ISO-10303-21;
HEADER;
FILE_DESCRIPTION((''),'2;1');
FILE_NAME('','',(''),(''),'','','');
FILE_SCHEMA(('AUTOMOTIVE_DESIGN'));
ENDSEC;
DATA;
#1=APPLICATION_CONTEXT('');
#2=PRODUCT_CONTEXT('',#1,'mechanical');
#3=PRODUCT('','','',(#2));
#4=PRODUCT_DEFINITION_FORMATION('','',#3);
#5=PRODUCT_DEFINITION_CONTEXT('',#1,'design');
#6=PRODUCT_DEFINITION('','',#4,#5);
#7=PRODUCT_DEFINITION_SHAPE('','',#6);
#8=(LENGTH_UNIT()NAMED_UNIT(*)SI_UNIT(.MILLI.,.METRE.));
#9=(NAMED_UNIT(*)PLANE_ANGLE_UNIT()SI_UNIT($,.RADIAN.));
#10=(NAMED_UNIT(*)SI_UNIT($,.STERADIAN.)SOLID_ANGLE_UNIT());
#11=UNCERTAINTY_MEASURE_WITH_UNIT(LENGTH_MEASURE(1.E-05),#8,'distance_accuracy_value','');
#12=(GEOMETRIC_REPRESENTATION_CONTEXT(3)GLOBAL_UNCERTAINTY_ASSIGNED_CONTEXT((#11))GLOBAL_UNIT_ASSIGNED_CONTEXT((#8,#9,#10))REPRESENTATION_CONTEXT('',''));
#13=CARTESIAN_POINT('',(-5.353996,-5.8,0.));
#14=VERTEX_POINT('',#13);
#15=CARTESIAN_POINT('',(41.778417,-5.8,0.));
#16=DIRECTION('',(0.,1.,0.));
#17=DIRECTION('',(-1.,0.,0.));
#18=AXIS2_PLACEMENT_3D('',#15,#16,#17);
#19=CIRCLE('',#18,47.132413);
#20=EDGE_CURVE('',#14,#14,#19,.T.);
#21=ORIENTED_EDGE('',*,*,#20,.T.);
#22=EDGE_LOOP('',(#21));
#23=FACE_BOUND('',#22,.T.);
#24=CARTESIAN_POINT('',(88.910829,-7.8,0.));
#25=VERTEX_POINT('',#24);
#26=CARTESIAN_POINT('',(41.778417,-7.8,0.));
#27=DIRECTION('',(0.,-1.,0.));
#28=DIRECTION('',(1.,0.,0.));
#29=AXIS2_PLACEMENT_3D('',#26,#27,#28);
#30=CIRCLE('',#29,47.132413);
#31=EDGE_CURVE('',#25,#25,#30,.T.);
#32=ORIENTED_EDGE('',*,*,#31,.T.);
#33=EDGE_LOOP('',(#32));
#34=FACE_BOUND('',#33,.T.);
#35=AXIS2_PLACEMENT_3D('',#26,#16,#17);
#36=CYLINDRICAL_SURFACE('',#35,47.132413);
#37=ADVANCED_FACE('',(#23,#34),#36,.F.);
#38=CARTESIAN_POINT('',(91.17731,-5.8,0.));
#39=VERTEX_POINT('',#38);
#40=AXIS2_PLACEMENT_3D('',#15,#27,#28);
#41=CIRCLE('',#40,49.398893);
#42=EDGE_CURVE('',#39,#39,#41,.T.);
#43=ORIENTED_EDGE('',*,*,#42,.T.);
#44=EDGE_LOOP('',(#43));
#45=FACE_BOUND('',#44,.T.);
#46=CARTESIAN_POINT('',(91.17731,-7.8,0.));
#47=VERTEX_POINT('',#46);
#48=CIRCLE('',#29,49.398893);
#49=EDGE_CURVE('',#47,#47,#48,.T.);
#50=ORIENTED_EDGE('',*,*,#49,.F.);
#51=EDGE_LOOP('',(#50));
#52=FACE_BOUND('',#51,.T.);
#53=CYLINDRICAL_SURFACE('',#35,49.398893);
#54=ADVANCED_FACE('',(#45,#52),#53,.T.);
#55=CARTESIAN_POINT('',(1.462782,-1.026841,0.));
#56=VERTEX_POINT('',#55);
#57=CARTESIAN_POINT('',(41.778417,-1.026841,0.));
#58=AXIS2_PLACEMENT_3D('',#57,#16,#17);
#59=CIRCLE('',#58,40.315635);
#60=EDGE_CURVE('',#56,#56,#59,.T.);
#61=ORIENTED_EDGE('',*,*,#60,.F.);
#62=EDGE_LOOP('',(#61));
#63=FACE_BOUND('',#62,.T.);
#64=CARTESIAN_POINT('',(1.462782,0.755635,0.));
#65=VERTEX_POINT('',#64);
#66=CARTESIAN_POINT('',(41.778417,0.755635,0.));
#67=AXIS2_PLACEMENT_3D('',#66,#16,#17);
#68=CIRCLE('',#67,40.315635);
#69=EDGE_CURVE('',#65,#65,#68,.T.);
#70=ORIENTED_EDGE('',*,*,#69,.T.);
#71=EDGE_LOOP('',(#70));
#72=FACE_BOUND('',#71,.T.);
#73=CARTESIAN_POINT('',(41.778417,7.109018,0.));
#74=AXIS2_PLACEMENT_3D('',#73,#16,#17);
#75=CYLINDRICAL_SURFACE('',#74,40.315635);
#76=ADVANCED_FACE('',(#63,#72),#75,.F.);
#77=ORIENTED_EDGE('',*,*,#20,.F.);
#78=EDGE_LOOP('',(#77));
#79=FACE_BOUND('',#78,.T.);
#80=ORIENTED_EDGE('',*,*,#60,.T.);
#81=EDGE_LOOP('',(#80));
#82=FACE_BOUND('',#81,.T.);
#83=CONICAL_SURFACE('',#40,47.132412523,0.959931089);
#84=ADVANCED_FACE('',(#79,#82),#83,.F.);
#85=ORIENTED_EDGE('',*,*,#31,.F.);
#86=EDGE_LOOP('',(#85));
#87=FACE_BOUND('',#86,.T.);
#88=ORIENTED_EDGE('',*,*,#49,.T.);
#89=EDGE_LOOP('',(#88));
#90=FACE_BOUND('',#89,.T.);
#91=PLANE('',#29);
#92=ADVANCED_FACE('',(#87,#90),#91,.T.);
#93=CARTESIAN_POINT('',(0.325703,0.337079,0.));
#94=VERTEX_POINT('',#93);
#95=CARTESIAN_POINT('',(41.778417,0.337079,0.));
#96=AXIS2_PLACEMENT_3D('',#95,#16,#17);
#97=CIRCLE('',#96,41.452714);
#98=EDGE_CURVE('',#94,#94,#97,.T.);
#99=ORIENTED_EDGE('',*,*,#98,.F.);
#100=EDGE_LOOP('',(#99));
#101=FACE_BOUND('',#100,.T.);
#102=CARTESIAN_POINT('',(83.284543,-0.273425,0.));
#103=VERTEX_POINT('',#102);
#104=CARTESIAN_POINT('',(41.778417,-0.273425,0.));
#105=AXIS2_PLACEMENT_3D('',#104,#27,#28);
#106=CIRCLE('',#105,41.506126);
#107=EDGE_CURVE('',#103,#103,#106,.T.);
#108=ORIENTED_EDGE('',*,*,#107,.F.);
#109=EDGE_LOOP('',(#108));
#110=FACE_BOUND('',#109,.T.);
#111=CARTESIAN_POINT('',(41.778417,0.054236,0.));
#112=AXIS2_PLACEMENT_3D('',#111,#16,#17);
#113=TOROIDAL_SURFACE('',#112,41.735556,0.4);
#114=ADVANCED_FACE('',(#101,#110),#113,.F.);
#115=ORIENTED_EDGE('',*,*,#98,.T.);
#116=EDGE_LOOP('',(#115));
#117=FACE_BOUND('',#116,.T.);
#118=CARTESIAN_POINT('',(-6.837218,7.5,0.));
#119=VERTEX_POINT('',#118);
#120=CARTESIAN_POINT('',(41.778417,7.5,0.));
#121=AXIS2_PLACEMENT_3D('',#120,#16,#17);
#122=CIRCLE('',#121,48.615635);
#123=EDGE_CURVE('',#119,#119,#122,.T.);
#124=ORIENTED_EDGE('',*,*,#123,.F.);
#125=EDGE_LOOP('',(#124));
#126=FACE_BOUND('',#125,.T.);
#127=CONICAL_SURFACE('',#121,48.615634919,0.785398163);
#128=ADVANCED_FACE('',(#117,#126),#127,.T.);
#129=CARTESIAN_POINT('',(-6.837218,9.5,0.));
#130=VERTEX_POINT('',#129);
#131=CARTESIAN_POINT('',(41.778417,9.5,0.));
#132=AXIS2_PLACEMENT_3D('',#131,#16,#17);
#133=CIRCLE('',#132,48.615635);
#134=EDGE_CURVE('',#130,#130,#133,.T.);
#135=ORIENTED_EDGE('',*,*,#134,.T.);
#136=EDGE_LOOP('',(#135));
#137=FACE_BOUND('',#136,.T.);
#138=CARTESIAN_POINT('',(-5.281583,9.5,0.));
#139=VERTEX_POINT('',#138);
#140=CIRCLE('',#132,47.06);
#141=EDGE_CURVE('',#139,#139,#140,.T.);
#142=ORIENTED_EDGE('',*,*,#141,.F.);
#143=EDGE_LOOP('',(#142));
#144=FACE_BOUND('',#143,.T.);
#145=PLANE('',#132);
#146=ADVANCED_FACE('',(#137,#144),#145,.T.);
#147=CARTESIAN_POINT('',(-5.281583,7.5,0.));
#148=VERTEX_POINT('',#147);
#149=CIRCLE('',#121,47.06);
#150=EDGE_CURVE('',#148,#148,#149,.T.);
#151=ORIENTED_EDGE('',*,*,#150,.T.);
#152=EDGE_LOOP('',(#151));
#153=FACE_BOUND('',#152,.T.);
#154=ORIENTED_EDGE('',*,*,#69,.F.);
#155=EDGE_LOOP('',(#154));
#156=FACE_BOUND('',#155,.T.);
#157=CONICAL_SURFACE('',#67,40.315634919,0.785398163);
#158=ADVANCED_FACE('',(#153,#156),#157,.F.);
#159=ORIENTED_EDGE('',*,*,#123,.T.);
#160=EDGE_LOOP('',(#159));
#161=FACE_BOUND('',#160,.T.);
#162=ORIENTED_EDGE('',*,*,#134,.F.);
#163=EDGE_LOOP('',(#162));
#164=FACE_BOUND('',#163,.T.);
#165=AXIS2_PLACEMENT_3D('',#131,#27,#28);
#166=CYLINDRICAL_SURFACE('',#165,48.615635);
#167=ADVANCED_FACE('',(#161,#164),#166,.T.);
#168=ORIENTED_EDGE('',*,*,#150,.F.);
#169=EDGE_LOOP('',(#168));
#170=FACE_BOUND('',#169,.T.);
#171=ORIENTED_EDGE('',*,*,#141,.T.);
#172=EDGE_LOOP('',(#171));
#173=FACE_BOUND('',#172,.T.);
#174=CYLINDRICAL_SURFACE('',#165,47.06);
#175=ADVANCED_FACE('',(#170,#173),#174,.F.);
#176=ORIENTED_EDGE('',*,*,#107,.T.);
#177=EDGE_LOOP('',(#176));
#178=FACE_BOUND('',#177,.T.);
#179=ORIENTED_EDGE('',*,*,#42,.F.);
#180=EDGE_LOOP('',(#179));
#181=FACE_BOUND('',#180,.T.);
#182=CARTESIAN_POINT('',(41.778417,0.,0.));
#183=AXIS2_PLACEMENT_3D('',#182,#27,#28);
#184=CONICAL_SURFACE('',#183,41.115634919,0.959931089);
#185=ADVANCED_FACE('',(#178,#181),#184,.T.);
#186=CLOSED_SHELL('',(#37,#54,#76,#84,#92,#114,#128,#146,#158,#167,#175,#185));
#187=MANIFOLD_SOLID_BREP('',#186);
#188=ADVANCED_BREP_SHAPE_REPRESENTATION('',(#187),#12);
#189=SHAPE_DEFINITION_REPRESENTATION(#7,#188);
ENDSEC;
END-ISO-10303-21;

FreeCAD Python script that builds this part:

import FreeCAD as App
import Part
import Sketcher

V = App.Vector
Q = App.Units.Quantity


def edges_at(feature, points):
    """Names of the edges that pass closest to the given points."""
    edges = feature.Shape.Edges
    near = lambda p: min(range(len(edges)), key=lambda i: edges[i].distToShape(Part.Vertex(*p))[0])
    return sorted({f"Edge{near(p) + 1}" for p in points})


def add_polygon(sketch, points):
    """Adds a closed chain of lines whose ends are joined by coincident constraints."""
    first, n = sketch.GeometryCount, len(points)
    for a, b in zip(points, points[1:] + points[:1]):
        sketch.addGeometry(Part.LineSegment(App.Vector(*a, 0), App.Vector(*b, 0)), False)
    for i in range(n):
        sketch.addConstraint(Sketcher.Constraint("Coincident", first + i, 2, first + (i + 1) % n, 1))

doc = App.newDocument("Part")
body = doc.addObject("PartDesign::Body", "Body")

# Sketch on XY plane
sketch1 = body.newObject("Sketcher::SketchObject", "Sketch")
sketch1.AttachmentSupport = (doc.getObject("XY_Plane"), [""])
sketch1.MapMode = "FlatFace"
add_polygon(sketch1, [(-6.8, 7.5), (0.7, 0), (-7.6, -5.8), (-5.4, -5.8), (1.5, -1), (1.5, 0.8), (-5.3, 7.5)])  # lines 0-6
sketch1.addGeometry(Part.LineSegment(V(41.8, 7.5, 0), V(41.8, -5.8, 0)), True)  # axis
sketch1.addConstraint([
    Sketcher.Constraint("Horizontal", 2),
    Sketcher.Constraint("Vertical", 4),
    Sketcher.Constraint("Horizontal", 6),
    Sketcher.Constraint("Vertical", 7),
    Sketcher.Constraint("PointOnObject", 0, 2, -1),
    Sketcher.Constraint("Parallel", 1, 3),
    Sketcher.Constraint("Parallel", 0, 5),
    Sketcher.Constraint("Horizontal", 6, 2, 7, 1),
    Sketcher.Constraint("Horizontal", 2, 2, 7, 2),
    Sketcher.Constraint("Angle", 0, Q("-45 deg")),
    Sketcher.Constraint("Angle", 1, Q("-145 deg")),
    Sketcher.Constraint("DistanceY", 7, 2, 7, 1, Q("13.3 mm")),
    Sketcher.Constraint("DistanceY", 1, 2, -1, 1, Q("5.8 mm")),
    Sketcher.Constraint("DistanceX", 0, 2, 3, 2, Q("0.8 mm")),
    Sketcher.Constraint("DistanceX", 5, 2, 7, 1, Q("47.06 mm")),
    Sketcher.Constraint("DistanceX", 2, 1, 2, 2, Q("2.266481 mm")),
    Sketcher.Constraint("DistanceX", 6, 2, 6, 1, Q("1.555635 mm")),
    Sketcher.Constraint("DistanceX", -1, 1, 0, 2, Q("0.662782 mm")),
])
revolution = body.newObject("PartDesign::Revolution", "Revolution")
revolution.Profile = sketch1
revolution.ReferenceAxis = (sketch1, ["Axis0"])
revolution.Angle = 360
doc.recompute()

fillet = body.newObject("PartDesign::Fillet", "Fillet")
fillet.Base = (revolution, edges_at(revolution, [(82.894, 0, 0)]))
fillet.Radius = 0.4

# Sketch on XZ plane
sketch2 = body.newObject("Sketcher::SketchObject", "Sketch001")
sketch2.AttachmentSupport = (doc.getObject("XZ_Plane"), [""])
sketch2.MapMode = "FlatFace"
sketch2.AttachmentOffset = App.Placement(V(0, 0, -7.5), App.Rotation())
sketch2.addGeometry([
    Part.Circle(V(42, 0, 0), V(0, 0, 1), 49),
    Part.Circle(V(42, 0, 0), V(0, 0, 1), 47),
], False)
sketch2.addConstraint([
    Sketcher.Constraint("Coincident", 1, 3, 0, 3),
    Sketcher.Constraint("PointOnObject", 0, 3, -1),
    Sketcher.Constraint("Diameter", 1, Q("94.12 mm")),
    Sketcher.Constraint("Diameter", 0, Q("97.23127 mm")),
    Sketcher.Constraint("DistanceX", -1, 1, 0, 3, Q("41.778417 mm")),
])
pad1 = body.newObject("PartDesign::Pad", "Pad")
pad1.Profile = sketch2
pad1.Length = 2
pad1.Reversed = True

# Sketch on XZ plane
sketch3 = body.newObject("Sketcher::SketchObject", "Sketch002")
sketch3.AttachmentSupport = (doc.getObject("XZ_Plane"), [""])
sketch3.MapMode = "FlatFace"
sketch3.AttachmentOffset = App.Placement(V(0, 0, 5.8), App.Rotation())
sketch3.addGeometry([
    Part.Circle(V(42, 0, 0), V(0, 0, 1), 49),
    Part.Circle(V(42, 0, 0), V(0, 0, 1), 47),
], False)
sketch3.addConstraint([
    Sketcher.Constraint("Coincident", 1, 3, 0, 3),
    Sketcher.Constraint("PointOnObject", 0, 3, -1),
    Sketcher.Constraint("Diameter", 0, Q("98.797787 mm")),
    Sketcher.Constraint("Diameter", 1, Q("94.264825 mm")),
    Sketcher.Constraint("DistanceX", -1, 1, 0, 3, Q("41.778417 mm")),
])
pad2 = body.newObject("PartDesign::Pad", "Pad001")
pad2.Profile = sketch3
pad2.Length = 2

doc.recompute()
